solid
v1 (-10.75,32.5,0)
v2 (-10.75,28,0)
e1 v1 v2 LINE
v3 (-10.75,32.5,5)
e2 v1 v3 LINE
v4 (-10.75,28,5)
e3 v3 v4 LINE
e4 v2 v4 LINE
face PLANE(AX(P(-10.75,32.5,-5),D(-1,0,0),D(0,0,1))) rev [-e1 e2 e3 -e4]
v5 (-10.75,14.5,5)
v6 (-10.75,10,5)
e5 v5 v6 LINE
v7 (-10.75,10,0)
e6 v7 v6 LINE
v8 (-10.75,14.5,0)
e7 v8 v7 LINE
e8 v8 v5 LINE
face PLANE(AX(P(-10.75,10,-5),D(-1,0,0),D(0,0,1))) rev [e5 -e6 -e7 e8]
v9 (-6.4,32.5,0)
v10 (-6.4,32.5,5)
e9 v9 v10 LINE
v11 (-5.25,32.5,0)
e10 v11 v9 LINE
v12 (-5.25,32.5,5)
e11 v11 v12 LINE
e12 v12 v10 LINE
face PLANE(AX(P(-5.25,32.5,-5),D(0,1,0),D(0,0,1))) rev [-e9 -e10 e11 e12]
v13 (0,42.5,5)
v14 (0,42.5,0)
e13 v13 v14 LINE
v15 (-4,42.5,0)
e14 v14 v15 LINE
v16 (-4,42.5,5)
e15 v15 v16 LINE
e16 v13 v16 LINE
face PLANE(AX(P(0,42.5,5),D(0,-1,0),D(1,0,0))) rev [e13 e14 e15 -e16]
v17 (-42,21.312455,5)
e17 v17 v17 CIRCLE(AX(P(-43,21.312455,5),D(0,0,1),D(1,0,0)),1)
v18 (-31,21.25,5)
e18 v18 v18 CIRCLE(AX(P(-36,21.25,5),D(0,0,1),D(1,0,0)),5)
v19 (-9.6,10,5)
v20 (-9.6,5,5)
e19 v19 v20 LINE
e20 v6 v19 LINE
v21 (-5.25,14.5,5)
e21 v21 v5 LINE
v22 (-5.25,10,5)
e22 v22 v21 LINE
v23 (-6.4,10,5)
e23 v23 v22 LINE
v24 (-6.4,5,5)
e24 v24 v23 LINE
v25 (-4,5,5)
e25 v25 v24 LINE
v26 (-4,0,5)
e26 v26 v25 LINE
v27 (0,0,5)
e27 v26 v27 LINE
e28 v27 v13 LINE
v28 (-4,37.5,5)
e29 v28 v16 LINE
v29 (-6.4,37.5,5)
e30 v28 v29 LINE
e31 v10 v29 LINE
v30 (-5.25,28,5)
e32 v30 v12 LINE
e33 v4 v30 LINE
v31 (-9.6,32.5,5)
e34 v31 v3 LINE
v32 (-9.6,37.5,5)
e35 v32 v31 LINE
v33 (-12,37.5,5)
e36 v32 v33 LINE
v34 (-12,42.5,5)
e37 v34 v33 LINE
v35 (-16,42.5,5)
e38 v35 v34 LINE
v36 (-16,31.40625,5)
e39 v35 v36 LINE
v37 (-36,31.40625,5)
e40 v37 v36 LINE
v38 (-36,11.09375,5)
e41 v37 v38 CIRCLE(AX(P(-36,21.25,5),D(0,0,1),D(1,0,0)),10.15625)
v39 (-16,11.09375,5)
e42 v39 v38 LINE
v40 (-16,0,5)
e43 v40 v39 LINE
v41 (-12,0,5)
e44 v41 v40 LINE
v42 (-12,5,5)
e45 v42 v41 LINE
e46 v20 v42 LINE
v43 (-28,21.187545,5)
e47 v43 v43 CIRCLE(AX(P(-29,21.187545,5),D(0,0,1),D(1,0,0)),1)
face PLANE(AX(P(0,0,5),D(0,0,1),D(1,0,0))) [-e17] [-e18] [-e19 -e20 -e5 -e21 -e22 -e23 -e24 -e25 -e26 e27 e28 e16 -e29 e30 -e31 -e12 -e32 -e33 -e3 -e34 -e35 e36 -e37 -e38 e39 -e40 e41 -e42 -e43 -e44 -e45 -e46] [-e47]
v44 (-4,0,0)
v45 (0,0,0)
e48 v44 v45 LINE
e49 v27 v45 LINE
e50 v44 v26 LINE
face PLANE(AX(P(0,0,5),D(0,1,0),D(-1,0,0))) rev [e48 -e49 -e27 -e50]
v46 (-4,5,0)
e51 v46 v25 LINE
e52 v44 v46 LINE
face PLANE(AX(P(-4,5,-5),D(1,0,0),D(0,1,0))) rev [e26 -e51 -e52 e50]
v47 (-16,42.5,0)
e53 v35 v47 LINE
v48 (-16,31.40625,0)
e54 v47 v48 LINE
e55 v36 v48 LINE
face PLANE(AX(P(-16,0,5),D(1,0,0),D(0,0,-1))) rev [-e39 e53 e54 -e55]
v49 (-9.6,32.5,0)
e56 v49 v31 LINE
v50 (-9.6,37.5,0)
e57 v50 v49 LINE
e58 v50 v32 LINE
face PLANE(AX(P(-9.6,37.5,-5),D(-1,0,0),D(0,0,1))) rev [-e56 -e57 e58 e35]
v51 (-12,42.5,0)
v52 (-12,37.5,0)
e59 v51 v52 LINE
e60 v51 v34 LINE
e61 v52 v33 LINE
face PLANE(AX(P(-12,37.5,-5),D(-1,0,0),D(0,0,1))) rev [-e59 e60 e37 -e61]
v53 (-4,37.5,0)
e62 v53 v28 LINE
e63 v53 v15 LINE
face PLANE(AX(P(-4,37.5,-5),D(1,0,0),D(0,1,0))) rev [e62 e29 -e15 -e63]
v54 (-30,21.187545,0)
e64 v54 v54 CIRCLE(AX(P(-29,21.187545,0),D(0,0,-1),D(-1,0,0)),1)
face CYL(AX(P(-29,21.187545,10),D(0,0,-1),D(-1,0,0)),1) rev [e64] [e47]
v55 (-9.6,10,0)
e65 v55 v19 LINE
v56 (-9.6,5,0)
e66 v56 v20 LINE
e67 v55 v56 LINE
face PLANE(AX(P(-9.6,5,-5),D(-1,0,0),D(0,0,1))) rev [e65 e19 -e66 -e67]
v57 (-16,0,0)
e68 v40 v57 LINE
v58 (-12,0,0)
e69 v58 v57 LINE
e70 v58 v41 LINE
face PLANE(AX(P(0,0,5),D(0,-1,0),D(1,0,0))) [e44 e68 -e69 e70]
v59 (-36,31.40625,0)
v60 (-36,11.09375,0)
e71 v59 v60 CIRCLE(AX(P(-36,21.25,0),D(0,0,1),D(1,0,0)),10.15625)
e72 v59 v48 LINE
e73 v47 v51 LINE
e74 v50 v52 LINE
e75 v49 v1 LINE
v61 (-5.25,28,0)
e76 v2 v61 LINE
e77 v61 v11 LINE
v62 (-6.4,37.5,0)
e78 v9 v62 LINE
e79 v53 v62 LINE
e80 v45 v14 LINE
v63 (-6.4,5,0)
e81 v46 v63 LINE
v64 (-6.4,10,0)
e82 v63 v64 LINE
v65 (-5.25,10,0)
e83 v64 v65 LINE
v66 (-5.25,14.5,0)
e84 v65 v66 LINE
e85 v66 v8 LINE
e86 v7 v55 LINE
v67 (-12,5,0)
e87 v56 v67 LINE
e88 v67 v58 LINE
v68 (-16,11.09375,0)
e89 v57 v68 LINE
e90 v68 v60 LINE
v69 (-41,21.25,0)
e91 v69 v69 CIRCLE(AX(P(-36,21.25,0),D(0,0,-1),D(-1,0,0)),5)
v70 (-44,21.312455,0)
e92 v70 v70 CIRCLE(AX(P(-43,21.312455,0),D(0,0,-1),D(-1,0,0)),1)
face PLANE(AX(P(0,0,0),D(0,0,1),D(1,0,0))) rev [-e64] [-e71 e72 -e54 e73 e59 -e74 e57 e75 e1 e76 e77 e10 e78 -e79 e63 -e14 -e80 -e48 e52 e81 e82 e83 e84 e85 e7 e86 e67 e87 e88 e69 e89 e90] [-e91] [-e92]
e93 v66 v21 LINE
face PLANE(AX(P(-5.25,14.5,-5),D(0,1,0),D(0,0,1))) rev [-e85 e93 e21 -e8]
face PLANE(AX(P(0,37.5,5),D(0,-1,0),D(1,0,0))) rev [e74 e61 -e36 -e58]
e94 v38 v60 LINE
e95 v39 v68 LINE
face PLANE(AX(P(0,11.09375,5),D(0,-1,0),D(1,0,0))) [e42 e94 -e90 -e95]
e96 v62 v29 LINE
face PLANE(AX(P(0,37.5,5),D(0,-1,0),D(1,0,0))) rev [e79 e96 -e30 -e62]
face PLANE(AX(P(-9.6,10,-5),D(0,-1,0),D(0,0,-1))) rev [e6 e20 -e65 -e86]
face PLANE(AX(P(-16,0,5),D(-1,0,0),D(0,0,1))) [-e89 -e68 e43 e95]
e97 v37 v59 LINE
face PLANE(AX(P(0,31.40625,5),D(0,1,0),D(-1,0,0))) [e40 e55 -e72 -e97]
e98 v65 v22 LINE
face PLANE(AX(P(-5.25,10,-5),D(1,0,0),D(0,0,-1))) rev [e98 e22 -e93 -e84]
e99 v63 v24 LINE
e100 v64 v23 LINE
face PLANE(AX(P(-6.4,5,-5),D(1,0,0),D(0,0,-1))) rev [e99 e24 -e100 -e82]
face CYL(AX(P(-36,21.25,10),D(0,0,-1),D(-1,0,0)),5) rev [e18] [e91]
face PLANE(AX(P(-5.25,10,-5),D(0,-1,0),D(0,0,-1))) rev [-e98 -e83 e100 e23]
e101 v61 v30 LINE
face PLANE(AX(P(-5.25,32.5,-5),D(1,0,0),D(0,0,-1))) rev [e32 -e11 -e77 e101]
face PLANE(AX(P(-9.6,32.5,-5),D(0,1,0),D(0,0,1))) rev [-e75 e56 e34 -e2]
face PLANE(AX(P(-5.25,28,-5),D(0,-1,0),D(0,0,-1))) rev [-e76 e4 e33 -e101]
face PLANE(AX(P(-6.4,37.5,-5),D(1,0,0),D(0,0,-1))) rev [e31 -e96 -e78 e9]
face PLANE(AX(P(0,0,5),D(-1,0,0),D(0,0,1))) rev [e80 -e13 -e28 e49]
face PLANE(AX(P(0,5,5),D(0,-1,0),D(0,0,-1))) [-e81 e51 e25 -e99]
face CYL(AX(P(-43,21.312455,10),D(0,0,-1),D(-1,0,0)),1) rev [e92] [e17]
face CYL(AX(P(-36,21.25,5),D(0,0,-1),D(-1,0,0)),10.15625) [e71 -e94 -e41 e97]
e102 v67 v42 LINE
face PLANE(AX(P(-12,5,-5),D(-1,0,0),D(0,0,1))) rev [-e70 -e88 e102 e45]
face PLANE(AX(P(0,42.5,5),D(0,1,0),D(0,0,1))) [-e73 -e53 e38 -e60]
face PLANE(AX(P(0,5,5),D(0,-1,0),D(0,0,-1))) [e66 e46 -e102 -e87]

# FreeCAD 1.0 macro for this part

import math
import FreeCAD as App
import Part
import Sketcher
from FreeCAD import Vector

doc = App.newDocument("Part")
body = doc.addObject("PartDesign::Body", "Body")

sketch1 = doc.addObject("Sketcher::SketchObject", "Sketch")
body.addObject(sketch1)
sketch1.AttachmentSupport = (doc.XY_Plane, [""])
sketch1.MapMode = "FlatFace"
sketch1.addGeometry([
    Part.LineSegment(Vector(-16, 31, 0), Vector(-36, 31, 0)),
    Part.ArcOfCircle(Part.Circle(Vector(-36, 21, 0), Vector(0, 0, 1), 10), math.radians(90), math.radians(270)),
    Part.LineSegment(Vector(-36, 11, 0), Vector(-16, 11, 0)),
    Part.LineSegment(Vector(-16, 11, 0), Vector(-16, 0, 0)),
    Part.LineSegment(Vector(-16, 0, 0), Vector(-11, 0, 0)),
    Part.LineSegment(Vector(-11, 0, 0), Vector(-11, 5, 0)),
    Part.LineSegment(Vector(-11, 5, 0), Vector(-5, 5, 0)),
    Part.LineSegment(Vector(-5, 5, 0), Vector(-5, 0, 0)),
    Part.LineSegment(Vector(-5, 0, 0), Vector(0, 0, 0)),
    Part.LineSegment(Vector(0, 0, 0), Vector(0, 42, 0)),
    Part.LineSegment(Vector(0, 42, 0), Vector(-5, 42, 0)),
    Part.LineSegment(Vector(-5, 42, 0), Vector(-5, 38, 0)),
    Part.LineSegment(Vector(-5, 38, 0), Vector(-11, 38, 0)),
    Part.LineSegment(Vector(-11, 38, 0), Vector(-11, 42, 0)),
    Part.LineSegment(Vector(-11, 42, 0), Vector(-16, 42, 0)),
    Part.LineSegment(Vector(-16, 42, 0), Vector(-16, 31, 0)),
], False)
sketch1.addConstraint([
    Sketcher.Constraint("Tangent", 0, 2, 1, 1),
    Sketcher.Constraint("Tangent", 1, 2, 2, 1),
    Sketcher.Constraint("Coincident", 2, 2, 3, 1),
    Sketcher.Constraint("Coincident", 3, 2, 4, 1),
    Sketcher.Constraint("Coincident", 4, 2, 5, 1),
    Sketcher.Constraint("Coincident", 5, 2, 6, 1),
    Sketcher.Constraint("Coincident", 6, 2, 7, 1),
    Sketcher.Constraint("Coincident", 7, 2, 8, 1),
    Sketcher.Constraint("Coincident", 8, 2, 9, 1),
    Sketcher.Constraint("Coincident", 9, 2, 10, 1),
    Sketcher.Constraint("Coincident", 10, 2, 11, 1),
    Sketcher.Constraint("Coincident", 11, 2, 12, 1),
    Sketcher.Constraint("Coincident", 12, 2, 13, 1),
    Sketcher.Constraint("Coincident", 13, 2, 14, 1),
    Sketcher.Constraint("Coincident", 14, 2, 15, 1),
    Sketcher.Constraint("Coincident", 15, 2, 0, 1),
    Sketcher.Constraint("Horizontal", 0),
    Sketcher.Constraint("Horizontal", 2),
    Sketcher.Constraint("Vertical", 3),
    Sketcher.Constraint("Horizontal", 4),
    Sketcher.Constraint("Vertical", 5),
    Sketcher.Constraint("Horizontal", 6),
    Sketcher.Constraint("Vertical", 7),
    Sketcher.Constraint("Horizontal", 8),
    Sketcher.Constraint("Vertical", 9),
    Sketcher.Constraint("Horizontal", 10),
    Sketcher.Constraint("Vertical", 11),
    Sketcher.Constraint("Horizontal", 12),
    Sketcher.Constraint("Vertical", 13),
    Sketcher.Constraint("Horizontal", 14),
    Sketcher.Constraint("Vertical", 15),
    Sketcher.Constraint("Coincident", 8, 2, -1, 1),
    Sketcher.Constraint("PointOnObject", 3, 2, -1),
    Sketcher.Constraint("Horizontal", 10, 2, 13, 2),
    Sketcher.Constraint("Vertical", 7, 2, 10, 2),
    Sketcher.Constraint("Vertical", 5, 2, 12, 2),
    Sketcher.Constraint("Vertical", 3, 2, 14, 2),
    Sketcher.Constraint("Equal", 4, 8),
    Sketcher.Constraint("Equal", 14, 5),
    Sketcher.Constraint("Equal", 7, 11),
    Sketcher.Constraint("Equal", 3, 15),
    Sketcher.Constraint("DistanceX", 0, 2, 0, 1, 20.0),
    Sketcher.Constraint("DistanceX", 4, 1, 4, 2, 5.0),
    Sketcher.Constraint("DistanceX", 6, 1, 6, 2, 6.0),
    Sketcher.Constraint("DistanceY", 9, 1, 9, 2, 42.5),
    Sketcher.Constraint("Radius", 1, 10.15625),
])
pad1 = doc.addObject("PartDesign::Pad", "Pad")
body.addObject(pad1)
pad1.Profile = sketch1
pad1.Length = 5

sketch2 = doc.addObject("Sketcher::SketchObject", "Sketch001")
body.addObject(sketch2)
sketch2.AttachmentSupport = (doc.XY_Plane, [""])
sketch2.MapMode = "FlatFace"
sketch2.addGeometry([
    Part.Circle(Vector(-36, 21.2, 0), Vector(0, 0, 1), 5),
    Part.Circle(Vector(-43, 21.3, 0), Vector(0, 0, 1), 1),
    Part.Circle(Vector(-36.1, 14.2, 0), Vector(0, 0, 1), 1),
    Part.Circle(Vector(-29, 21.2, 0), Vector(0, 0, 1), 1),
    Part.Circle(Vector(-35.9, 28.2, 0), Vector(0, 0, 1), 1),
], False)
sketch2.addConstraint([
    Sketcher.Constraint("Equal", 1, 2),
    Sketcher.Constraint("Equal", 2, 3),
    Sketcher.Constraint("Equal", 3, 4),
    Sketcher.Constraint("Diameter", 0, 10.0),
    Sketcher.Constraint("Diameter", 1, 2.0),
    Sketcher.Constraint("DistanceX", 0, 3, -1, 1, 36.0),
    Sketcher.Constraint("DistanceX", 1, 3, -1, 1, 43.0),
    Sketcher.Constraint("DistanceX", 3, 3, -1, 1, 29.0),
    Sketcher.Constraint("DistanceY", 2, 3, 0, 3, 7.0),
    Sketcher.Constraint("DistanceY", 0, 3, 4, 3, 7.0),
    Sketcher.Constraint("DistanceY", -1, 1, 0, 3, 21.25),
    Sketcher.Constraint("DistanceY", 3, 3, 1, 3, 0.124909),
    Sketcher.Constraint("DistanceX", 2, 3, 4, 3, 0.124909),
    Sketcher.Constraint("DistanceY", -1, 1, 1, 3, 21.312455),
    Sketcher.Constraint("DistanceX", 2, 3, -1, 1, 36.062455),
])
pocket1 = doc.addObject("PartDesign::Pocket", "Pocket")
body.addObject(pocket1)
pocket1.Profile = sketch2
pocket1.Length = 10
pocket1.Reversed = True

sketch3 = doc.addObject("Sketcher::SketchObject", "Sketch002")
body.addObject(sketch3)
sketch3.AttachmentSupport = (doc.XY_Plane, [""])
sketch3.MapMode = "FlatFace"
sketch3.addGeometry([
    Part.Circle(Vector(-35.9, 28.2, 0), Vector(0, 0, 1), 1),
    Part.Circle(Vector(-36.1, 14.2, 0), Vector(0, 0, 1), 1.4),
], False)
sketch3.addConstraint([
    Sketcher.Constraint("Diameter", 0, 2.0),
    Sketcher.Constraint("DistanceY", 1, 3, 0, 3, 14.0),
    Sketcher.Constraint("DistanceY", -1, 1, 0, 3, 28.25),
    Sketcher.Constraint("Diameter", 1, 2.880922),
    Sketcher.Constraint("DistanceX", 1, 3, 0, 3, 0.124909),
    Sketcher.Constraint("DistanceX", 0, 3, -1, 1, 35.937545),
])
pad2 = doc.addObject("PartDesign::Pad", "Pad001")
body.addObject(pad2)
pad2.Profile = sketch3
pad2.Length = 5

sketch4 = doc.addObject("Sketcher::SketchObject", "Sketch003")
body.addObject(sketch4)
sketch4.AttachmentSupport = (doc.XY_Plane, [""])
sketch4.MapMode = "FlatFace"
sketch4.AttachmentOffset = App.Placement(Vector(0, 0, 5), App.Rotation())
sketch4.addGeometry([
    Part.LineSegment(Vector(-9.6, 5, 0), Vector(-6.4, 5, 0)),
    Part.LineSegment(Vector(-6.4, 5, 0), Vector(-6.4, 10, 0)),
    Part.LineSegment(Vector(-6.4, 10, 0), Vector(-5.2, 10, 0)),
    Part.LineSegment(Vector(-5.2, 10, 0), Vector(-5.2, 14.5, 0)),
    Part.LineSegment(Vector(-5.2, 14.5, 0), Vector(-10.8, 14.5, 0)),
    Part.LineSegment(Vector(-10.8, 14.5, 0), Vector(-10.8, 10, 0)),
    Part.LineSegment(Vector(-10.8, 10, 0), Vector(-9.6, 10, 0)),
    Part.LineSegment(Vector(-9.6, 10, 0), Vector(-9.6, 5, 0)),
    Part.LineSegment(Vector(-10.8, 32.5, 0), Vector(-10.8, 28, 0)),
    Part.LineSegment(Vector(-10.8, 28, 0), Vector(-5.2, 28, 0)),
    Part.LineSegment(Vector(-5.2, 28, 0), Vector(-5.2, 32.5, 0)),
    Part.LineSegment(Vector(-5.2, 32.5, 0), Vector(-6.4, 32.5, 0)),
    Part.LineSegment(Vector(-6.4, 32.5, 0), Vector(-6.4, 37.5, 0)),
    Part.LineSegment(Vector(-6.4, 37.5, 0), Vector(-9.6, 37.5, 0)),
    Part.LineSegment(Vector(-9.6, 37.5, 0), Vector(-9.6, 32.5, 0)),
    Part.LineSegment(Vector(-9.6, 32.5, 0), Vector(-10.8, 32.5, 0)),
], False)
sketch4.addConstraint([
    Sketcher.Constraint("Coincident", 0, 2, 1, 1),
    Sketcher.Constraint("Coincident", 1, 2, 2, 1),
    Sketcher.Constraint("Coincident", 2, 2, 3, 1),
    Sketcher.Constraint("Coincident", 3, 2, 4, 1),
    Sketcher.Constraint("Coincident", 4, 2, 5, 1),
    Sketcher.Constraint("Coincident", 5, 2, 6, 1),
    Sketcher.Constraint("Coincident", 6, 2, 7, 1),
    Sketcher.Constraint("Coincident", 7, 2, 0, 1),
    Sketcher.Constraint("Coincident", 8, 2, 9, 1),
    Sketcher.Constraint("Coincident", 9, 2, 10, 1),
    Sketcher.Constraint("Coincident", 10, 2, 11, 1),
    Sketcher.Constraint("Coincident", 11, 2, 12, 1),
    Sketcher.Constraint("Coincident", 12, 2, 13, 1),
    Sketcher.Constraint("Coincident", 13, 2, 14, 1),
    Sketcher.Constraint("Coincident", 14, 2, 15, 1),
    Sketcher.Constraint("Coincident", 15, 2, 8, 1),
    Sketcher.Constraint("Horizontal", 0),
    Sketcher.Constraint("Vertical", 1),
    Sketcher.Constraint("Horizontal", 2),
    Sketcher.Constraint("Vertical", 3),
    Sketcher.Constraint("Horizontal", 4),
    Sketcher.Constraint("Vertical", 5),
    Sketcher.Constraint("Horizontal", 6),
    Sketcher.Constraint("Vertical", 7),
    Sketcher.Constraint("Vertical", 8),
    Sketcher.Constraint("Horizontal", 9),
    Sketcher.Constraint("Vertical", 10),
    Sketcher.Constraint("Horizontal", 11),
    Sketcher.Constraint("Vertical", 12),
    Sketcher.Constraint("Horizontal", 13),
    Sketcher.Constraint("Vertical", 14),
    Sketcher.Constraint("Horizontal", 15),
    Sketcher.Constraint("Horizontal", 2, 2, 5, 2),
    Sketcher.Constraint("Horizontal", 11, 2, 14, 2),
    Sketcher.Constraint("Vertical", 5, 2, 8, 2),
    Sketcher.Constraint("Vertical", 3, 2, 9, 2),
    Sketcher.Constraint("Vertical", 1, 2, 11, 2),
    Sketcher.Constraint("Vertical", 7, 2, 13, 2),
    Sketcher.Constraint("Equal", 2, 6),
    Sketcher.Constraint("Equal", 5, 8),
    Sketcher.Constraint("Equal", 7, 12),
    Sketcher.Constraint("DistanceY", 1, 1, 1, 2, 5.0),
    Sketcher.Constraint("DistanceX", 0, 1, 0, 2, 3.2),
    Sketcher.Constraint("DistanceX", 4, 2, 4, 1, 5.5),
    Sketcher.Constraint("DistanceY", 3, 1, 3, 2, 4.5),
    Sketcher.Constraint("DistanceY", -1, 1, 0, 2, 5.0),
    Sketcher.Constraint("DistanceY", -1, 1, 8, 2, 28.0),
    Sketcher.Constraint("DistanceX", 0, 2, -1, 1, 6.4),
])
pocket2 = doc.addObject("PartDesign::Pocket", "Pocket001")
body.addObject(pocket2)
pocket2.Profile = sketch4
pocket2.Length = 10

sketch5 = doc.addObject("Sketcher::SketchObject", "Sketch004")
body.addObject(sketch5)
sketch5.AttachmentSupport = (doc.XY_Plane, [""])
sketch5.MapMode = "FlatFace"
sketch5.AttachmentOffset = App.Placement(Vector(0, 0, 5), App.Rotation())
sketch5.addGeometry([
    Part.LineSegment(Vector(-5, 5, 0), Vector(-5, 0, 0)),
    Part.LineSegment(Vector(-5, 0, 0), Vector(-4, 0, 0)),
    Part.LineSegment(Vector(-4, 0, 0), Vector(-4, 5, 0)),
    Part.LineSegment(Vector(-4, 5, 0), Vector(-5, 5, 0)),
    Part.LineSegment(Vector(-12, 5, 0), Vector(-12, 0, 0)),
    Part.LineSegment(Vector(-12, 0, 0), Vector(-11, 0, 0)),
    Part.LineSegment(Vector(-11, 0, 0), Vector(-11, 5, 0)),
    Part.LineSegment(Vector(-11, 5, 0), Vector(-12, 5, 0)),
    Part.LineSegment(Vector(-12, 42.5, 0), Vector(-12, 37.5, 0)),
    Part.LineSegment(Vector(-12, 37.5, 0), Vector(-11, 37.5, 0)),
    Part.LineSegment(Vector(-11, 37.5, 0), Vector(-11, 42.5, 0)),
    Part.LineSegment(Vector(-11, 42.5, 0), Vector(-12, 42.5, 0)),
    Part.LineSegment(Vector(-5, 42.5, 0), Vector(-5, 37.5, 0)),
    Part.LineSegment(Vector(-5, 37.5, 0), Vector(-4, 37.5, 0)),
    Part.LineSegment(Vector(-4, 37.5, 0), Vector(-4, 42.5, 0)),
    Part.LineSegment(Vector(-4, 42.5, 0), Vector(-5, 42.5, 0)),
], False)
sketch5.addConstraint([
    Sketcher.Constraint("Coincident", 0, 2, 1, 1),
    Sketcher.Constraint("Coincident", 1, 2, 2, 1),
    Sketcher.Constraint("Coincident", 2, 2, 3, 1),
    Sketcher.Constraint("Coincident", 3, 2, 0, 1),
    Sketcher.Constraint("Coincident", 4, 2, 5, 1),
    Sketcher.Constraint("Coincident", 5, 2, 6, 1),
    Sketcher.Constraint("Coincident", 6, 2, 7, 1),
    Sketcher.Constraint("Coincident", 7, 2, 4, 1),
    Sketcher.Constraint("Coincident", 8, 2, 9, 1),
    Sketcher.Constraint("Coincident", 9, 2, 10, 1),
    Sketcher.Constraint("Coincident", 10, 2, 11, 1),
    Sketcher.Constraint("Coincident", 11, 2, 8, 1),
    Sketcher.Constraint("Coincident", 12, 2, 13, 1),
    Sketcher.Constraint("Coincident", 13, 2, 14, 1),
    Sketcher.Constraint("Coincident", 14, 2, 15, 1),
    Sketcher.Constraint("Coincident", 15, 2, 12, 1),
    Sketcher.Constraint("Vertical", 0),
    Sketcher.Constraint("Horizontal", 1),
    Sketcher.Constraint("Vertical", 2),
    Sketcher.Constraint("Horizontal", 3),
    Sketcher.Constraint("Vertical", 4),
    Sketcher.Constraint("Horizontal", 5),
    Sketcher.Constraint("Vertical", 6),
    Sketcher.Constraint("Horizontal", 7),
    Sketcher.Constraint("Vertical", 8),
    Sketcher.Constraint("Horizontal", 9),
    Sketcher.Constraint("Vertical", 10),
    Sketcher.Constraint("Horizontal", 11),
    Sketcher.Constraint("Vertical", 12),
    Sketcher.Constraint("Horizontal", 13),
    Sketcher.Constraint("Vertical", 14),
    Sketcher.Constraint("Horizontal", 15),
    Sketcher.Constraint("PointOnObject", 0, 2, -1),
    Sketcher.Constraint("PointOnObject", 4, 2, -1),
    Sketcher.Constraint("Horizontal", 3, 2, 6, 2),
    Sketcher.Constraint("Horizontal", 9, 2, 12, 2),
    Sketcher.Constraint("Horizontal", 11, 2, 14, 2),
    Sketcher.Constraint("Vertical", 7, 2, 8, 2),
    Sketcher.Constraint("Vertical", 6, 2, 9, 2),
    Sketcher.Constraint("Vertical", 3, 2, 12, 2),
    Sketcher.Constraint("Vertical", 2, 2, 13, 2),
    Sketcher.Constraint("Equal", 3, 5),
    Sketcher.Constraint("Equal", 6, 8),
    Sketcher.Constraint("DistanceX", 1, 1, 1, 2, 1.0),
    Sketcher.Constraint("DistanceY", 0, 2, 0, 1, 5.0),
    Sketcher.Constraint("DistanceX", 0, 2, -1, 1, 5.0),
    Sketcher.Constraint("DistanceX", 4, 2, -1, 1, 12.0),
    Sketcher.Constraint("DistanceY", -1, 1, 8, 2, 37.5),
])
pocket3 = doc.addObject("PartDesign::Pocket", "Pocket002")
body.addObject(pocket3)
pocket3.Profile = sketch5
pocket3.Length = 10

doc.recompute()
